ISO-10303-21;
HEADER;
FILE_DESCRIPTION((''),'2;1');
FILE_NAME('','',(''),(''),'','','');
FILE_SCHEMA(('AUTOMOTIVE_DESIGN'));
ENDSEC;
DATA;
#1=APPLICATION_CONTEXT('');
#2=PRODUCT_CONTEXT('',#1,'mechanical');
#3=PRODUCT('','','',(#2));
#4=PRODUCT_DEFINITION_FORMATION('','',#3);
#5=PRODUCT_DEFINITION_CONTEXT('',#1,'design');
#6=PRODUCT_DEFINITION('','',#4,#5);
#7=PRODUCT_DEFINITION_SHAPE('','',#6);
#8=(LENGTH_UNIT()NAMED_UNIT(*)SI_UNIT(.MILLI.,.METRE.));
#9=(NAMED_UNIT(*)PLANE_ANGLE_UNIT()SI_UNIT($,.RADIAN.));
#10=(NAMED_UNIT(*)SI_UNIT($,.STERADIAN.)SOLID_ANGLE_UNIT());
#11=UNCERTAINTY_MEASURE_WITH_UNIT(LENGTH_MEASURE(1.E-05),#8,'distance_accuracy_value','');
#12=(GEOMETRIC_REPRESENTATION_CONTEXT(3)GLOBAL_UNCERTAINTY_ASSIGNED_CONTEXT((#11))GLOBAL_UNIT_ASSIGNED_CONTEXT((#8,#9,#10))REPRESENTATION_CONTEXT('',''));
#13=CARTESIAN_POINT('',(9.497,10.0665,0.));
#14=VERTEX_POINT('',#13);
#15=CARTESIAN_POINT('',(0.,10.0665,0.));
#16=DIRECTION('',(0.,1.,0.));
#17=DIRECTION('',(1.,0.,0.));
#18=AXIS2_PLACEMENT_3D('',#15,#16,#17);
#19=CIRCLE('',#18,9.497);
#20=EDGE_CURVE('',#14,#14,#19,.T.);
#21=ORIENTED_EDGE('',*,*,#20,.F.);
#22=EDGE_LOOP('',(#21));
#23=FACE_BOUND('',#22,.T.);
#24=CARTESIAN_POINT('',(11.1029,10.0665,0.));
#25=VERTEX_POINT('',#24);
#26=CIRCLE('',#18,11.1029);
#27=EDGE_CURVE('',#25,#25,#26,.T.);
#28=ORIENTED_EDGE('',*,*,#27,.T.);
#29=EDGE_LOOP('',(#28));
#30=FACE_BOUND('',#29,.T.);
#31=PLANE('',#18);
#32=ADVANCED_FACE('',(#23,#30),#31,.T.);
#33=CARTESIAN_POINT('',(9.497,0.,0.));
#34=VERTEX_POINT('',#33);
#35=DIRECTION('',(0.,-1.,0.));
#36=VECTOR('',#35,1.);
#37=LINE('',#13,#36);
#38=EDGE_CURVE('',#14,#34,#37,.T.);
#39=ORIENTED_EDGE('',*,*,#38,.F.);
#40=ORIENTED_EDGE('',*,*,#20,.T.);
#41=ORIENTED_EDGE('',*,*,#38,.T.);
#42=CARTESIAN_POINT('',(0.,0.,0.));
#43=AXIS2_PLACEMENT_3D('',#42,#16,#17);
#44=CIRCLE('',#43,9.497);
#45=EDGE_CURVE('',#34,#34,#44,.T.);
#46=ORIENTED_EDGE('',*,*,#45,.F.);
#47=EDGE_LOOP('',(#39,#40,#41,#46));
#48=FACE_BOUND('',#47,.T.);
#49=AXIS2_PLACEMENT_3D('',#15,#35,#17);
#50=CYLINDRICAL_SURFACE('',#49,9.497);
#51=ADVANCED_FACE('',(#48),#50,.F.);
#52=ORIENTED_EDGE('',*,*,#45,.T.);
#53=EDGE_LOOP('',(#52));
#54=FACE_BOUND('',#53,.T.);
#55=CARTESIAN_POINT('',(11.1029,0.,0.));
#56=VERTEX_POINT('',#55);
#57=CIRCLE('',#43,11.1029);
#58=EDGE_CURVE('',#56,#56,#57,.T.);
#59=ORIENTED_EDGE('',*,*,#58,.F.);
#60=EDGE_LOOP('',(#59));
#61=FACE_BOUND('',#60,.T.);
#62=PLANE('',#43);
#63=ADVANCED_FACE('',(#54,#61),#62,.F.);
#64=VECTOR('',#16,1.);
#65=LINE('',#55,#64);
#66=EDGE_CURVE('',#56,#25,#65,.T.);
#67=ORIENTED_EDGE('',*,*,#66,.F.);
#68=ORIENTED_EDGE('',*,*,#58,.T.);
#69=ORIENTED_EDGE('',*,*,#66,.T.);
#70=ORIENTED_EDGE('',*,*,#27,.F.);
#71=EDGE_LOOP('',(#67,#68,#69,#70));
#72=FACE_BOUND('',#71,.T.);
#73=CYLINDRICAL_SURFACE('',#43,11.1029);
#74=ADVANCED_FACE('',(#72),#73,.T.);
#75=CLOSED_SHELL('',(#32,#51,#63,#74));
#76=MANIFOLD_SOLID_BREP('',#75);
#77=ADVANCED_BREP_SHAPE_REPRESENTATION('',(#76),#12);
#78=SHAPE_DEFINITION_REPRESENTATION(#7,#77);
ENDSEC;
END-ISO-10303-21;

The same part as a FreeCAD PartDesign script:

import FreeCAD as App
import Part
import Sketcher
Q = App.Units.Quantity


def add_polygon(sketch, points):
    """Adds a closed chain of lines whose ends are joined by coincident constraints."""
    first, n = sketch.GeometryCount, len(points)
    for a, b in zip(points, points[1:] + points[:1]):
        sketch.addGeometry(Part.LineSegment(App.Vector(*a, 0), App.Vector(*b, 0)), False)
    for i in range(n):
        sketch.addConstraint(Sketcher.Constraint("Coincident", first + i, 2, first + (i + 1) % n, 1))

doc = App.newDocument("Part")
params = doc.addObject("Spreadsheet::Sheet", "Params")
for row, (alias, value) in enumerate([
    ("revolution_angle", "360 deg"),
], start=1):
    params.set(f"A{row}", alias)
    params.set(f"B{row}", "=" + value)
    params.setAlias(f"B{row}", alias)

body = doc.addObject("PartDesign::Body", "Body")

sketch1 = body.newObject("Sketcher::SketchObject", "Sketch")
sketch1.AttachmentSupport = (doc.getObject("XY_Plane"), [""])
sketch1.MapMode = "FlatFace"
add_polygon(sketch1, [(9.5, 10.1), (9.5, 0), (11.1, 0), (11.1, 10.1)])
sketch1.addConstraint([
    Sketcher.Constraint("Vertical", 0),
    Sketcher.Constraint("Horizontal", 1),
    Sketcher.Constraint("Vertical", 2),
    Sketcher.Constraint("Horizontal", 3),
    Sketcher.Constraint("PointOnObject", 0, 2, -1),
    Sketcher.Constraint("DistanceY", 0, 2, 0, 1, Q("10.0665 mm")),
    Sketcher.Constraint("DistanceX", -1, 1, 0, 2, Q("9.497 mm")),
    Sketcher.Constraint("DistanceX", 1, 1, 1, 2, Q("1.606 mm")),
])
revolution = body.newObject("PartDesign::Revolution", "Revolution")
revolution.Profile = sketch1
revolution.ReferenceAxis = (sketch1, ["V_Axis"])
revolution.setExpression("Angle", "Params.revolution_angle")

doc.recompute()
